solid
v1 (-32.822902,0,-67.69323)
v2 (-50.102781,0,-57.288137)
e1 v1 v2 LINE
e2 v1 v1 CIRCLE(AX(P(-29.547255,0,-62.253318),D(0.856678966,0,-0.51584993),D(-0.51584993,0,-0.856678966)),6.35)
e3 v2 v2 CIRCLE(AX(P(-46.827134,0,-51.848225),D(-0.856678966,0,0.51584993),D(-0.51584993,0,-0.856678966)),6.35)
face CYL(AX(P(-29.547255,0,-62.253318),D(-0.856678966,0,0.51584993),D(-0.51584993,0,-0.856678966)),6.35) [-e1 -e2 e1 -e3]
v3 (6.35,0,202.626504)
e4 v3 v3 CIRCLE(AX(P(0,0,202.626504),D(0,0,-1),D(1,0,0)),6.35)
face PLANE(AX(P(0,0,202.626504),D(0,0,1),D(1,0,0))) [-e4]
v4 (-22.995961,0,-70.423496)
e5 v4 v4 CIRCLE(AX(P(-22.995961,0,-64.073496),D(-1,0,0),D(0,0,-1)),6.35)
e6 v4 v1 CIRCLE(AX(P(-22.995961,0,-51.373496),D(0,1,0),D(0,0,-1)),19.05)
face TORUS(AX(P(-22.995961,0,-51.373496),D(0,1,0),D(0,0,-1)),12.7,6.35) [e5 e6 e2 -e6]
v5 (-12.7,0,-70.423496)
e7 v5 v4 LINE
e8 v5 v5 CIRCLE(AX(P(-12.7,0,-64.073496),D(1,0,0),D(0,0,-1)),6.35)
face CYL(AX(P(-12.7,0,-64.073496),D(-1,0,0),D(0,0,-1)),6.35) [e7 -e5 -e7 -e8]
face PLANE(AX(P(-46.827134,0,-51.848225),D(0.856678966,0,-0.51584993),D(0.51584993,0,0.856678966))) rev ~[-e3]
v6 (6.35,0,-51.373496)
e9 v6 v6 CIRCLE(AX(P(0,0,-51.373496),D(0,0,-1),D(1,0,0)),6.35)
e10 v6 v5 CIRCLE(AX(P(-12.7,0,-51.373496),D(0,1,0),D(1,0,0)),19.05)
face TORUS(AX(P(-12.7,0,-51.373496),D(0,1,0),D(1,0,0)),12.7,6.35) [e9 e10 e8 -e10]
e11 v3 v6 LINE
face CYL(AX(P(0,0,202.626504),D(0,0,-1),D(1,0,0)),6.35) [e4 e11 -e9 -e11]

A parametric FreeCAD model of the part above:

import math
import FreeCAD as App
import Part
import Sketcher
from FreeCAD import Vector
Q = App.Units.Quantity

doc = App.newDocument("Part")
body = doc.addObject("PartDesign::Body", "Body")

sketch1 = body.newObject("Sketcher::SketchObject", "Sketch")
sketch1.AttachmentSupport = (doc.getObject("XY_Plane"), [""])
sketch1.MapMode = "FlatFace"
sketch1.AttachmentOffset = App.Placement(Vector(0, 0, 202.626504), App.Rotation())
sketch1.addGeometry(Part.Circle(Vector(0, 0, 0), Vector(0, 0, 1), 6), False)
sketch1.addConstraint([
    Sketcher.Constraint("Coincident", 0, 3, -1, 1),
    Sketcher.Constraint("Diameter", 0, Q("0.5 in")),
])

sketch2 = body.newObject("Sketcher::SketchObject", "Sketch001")
sketch2.AttachmentSupport = (doc.getObject("XZ_Plane"), [""])
sketch2.MapMode = "FlatFace"
sketch2.addGeometry([
    Part.LineSegment(Vector(0, 203, 0), Vector(0, -51, 0)),
    Part.ArcOfCircle(Part.Circle(Vector(-13, -51, 0), Vector(0, 0, 1), 13), math.radians(-90), math.radians(0)),
    Part.LineSegment(Vector(-13, -64, 0), Vector(-23, -64, 0)),
    Part.ArcOfCircle(Part.Circle(Vector(-23, -51, 0), Vector(0, 0, 1), 13), math.radians(-121), math.radians(-90)),
    Part.LineSegment(Vector(-30, -62, 0), Vector(-47, -52, 0)),
], False)
sketch2.addConstraint([
    Sketcher.Constraint("Tangent", 0, 2, 1, 2),
    Sketcher.Constraint("Tangent", 1, 1, 2, 1),
    Sketcher.Constraint("Tangent", 2, 2, 3, 2),
    Sketcher.Constraint("Tangent", 3, 1, 4, 1),
    Sketcher.Constraint("Vertical", 0),
    Sketcher.Constraint("Horizontal", 2),
    Sketcher.Constraint("Equal", 1, 3),
    Sketcher.Constraint("PointOnObject", 0, 1, -2),
    Sketcher.Constraint("Radius", 1, Q("0.5 in")),
    Sketcher.Constraint("DistanceY", 0, 2, 0, 1, Q("10 in")),
    Sketcher.Constraint("DistanceX", 2, 2, 2, 1, Q("10.295961 mm")),
    Sketcher.Constraint("DistanceY", 3, 1, -1, 1, Q("62.253318 mm")),
    Sketcher.Constraint("DistanceX", 4, 2, 3, 1, Q("17.279879 mm")),
    Sketcher.Constraint("DistanceY", 4, 2, 3, 3, Q("0.47473 mm")),
])
doc.recompute()

additivepipe = body.newObject("PartDesign::AdditivePipe", "AdditivePipe")
additivepipe.Profile = sketch1
additivepipe.Spine = (sketch2, ["Edge1", "Edge2", "Edge3", "Edge4", "Edge5"])

doc.recompute()
